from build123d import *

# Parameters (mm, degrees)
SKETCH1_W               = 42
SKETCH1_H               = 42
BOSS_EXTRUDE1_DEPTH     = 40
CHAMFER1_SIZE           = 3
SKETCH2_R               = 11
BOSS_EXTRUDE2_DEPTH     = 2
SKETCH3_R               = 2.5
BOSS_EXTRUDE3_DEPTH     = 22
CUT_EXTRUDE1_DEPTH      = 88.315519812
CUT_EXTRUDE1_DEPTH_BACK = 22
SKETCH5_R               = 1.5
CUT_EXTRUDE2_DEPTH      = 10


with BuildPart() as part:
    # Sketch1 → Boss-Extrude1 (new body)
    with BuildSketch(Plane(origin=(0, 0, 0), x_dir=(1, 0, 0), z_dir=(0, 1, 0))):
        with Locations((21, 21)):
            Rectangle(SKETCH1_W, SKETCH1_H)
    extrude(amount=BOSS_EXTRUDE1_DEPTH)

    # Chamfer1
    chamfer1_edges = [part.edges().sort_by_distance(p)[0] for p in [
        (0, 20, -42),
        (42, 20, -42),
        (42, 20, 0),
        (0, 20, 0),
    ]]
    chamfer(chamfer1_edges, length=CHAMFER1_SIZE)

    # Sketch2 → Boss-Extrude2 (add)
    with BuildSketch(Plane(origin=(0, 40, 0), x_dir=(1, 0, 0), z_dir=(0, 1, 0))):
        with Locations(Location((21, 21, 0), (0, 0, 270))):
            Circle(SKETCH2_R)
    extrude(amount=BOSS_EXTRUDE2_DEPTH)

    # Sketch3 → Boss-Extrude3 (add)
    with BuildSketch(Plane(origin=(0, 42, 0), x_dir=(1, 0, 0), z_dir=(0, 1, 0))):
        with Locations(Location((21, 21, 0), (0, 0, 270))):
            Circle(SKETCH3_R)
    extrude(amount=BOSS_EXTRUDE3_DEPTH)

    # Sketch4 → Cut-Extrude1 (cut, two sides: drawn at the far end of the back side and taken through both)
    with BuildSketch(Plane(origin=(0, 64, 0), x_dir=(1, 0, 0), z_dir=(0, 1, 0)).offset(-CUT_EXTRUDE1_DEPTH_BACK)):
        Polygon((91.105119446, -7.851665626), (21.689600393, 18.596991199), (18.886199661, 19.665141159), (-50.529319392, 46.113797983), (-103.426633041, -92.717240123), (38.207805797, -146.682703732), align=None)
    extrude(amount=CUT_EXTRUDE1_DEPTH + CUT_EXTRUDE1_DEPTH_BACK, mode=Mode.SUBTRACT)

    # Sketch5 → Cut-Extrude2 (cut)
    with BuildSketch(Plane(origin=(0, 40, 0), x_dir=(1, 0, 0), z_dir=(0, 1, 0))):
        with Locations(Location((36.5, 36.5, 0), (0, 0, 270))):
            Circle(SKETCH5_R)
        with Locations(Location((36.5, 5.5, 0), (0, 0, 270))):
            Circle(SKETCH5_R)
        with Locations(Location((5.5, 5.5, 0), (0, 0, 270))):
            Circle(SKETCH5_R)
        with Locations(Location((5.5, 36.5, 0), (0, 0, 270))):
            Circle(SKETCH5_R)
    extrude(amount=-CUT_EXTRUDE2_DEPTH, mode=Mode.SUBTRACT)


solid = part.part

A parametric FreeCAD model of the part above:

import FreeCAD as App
import Part
import Sketcher
Q = App.Units.Quantity


def edges_at(feature, points):
    """Names of the edges that pass closest to the given points."""
    edges = feature.Shape.Edges
    near = lambda p: min(range(len(edges)), key=lambda i: edges[i].distToShape(Part.Vertex(*p))[0])
    return sorted({f"Edge{near(p) + 1}" for p in points})

doc = App.newDocument("Part")
body = doc.addObject("PartDesign::Body", "Body")

# Sketch on XZ plane
sketch1 = body.newObject("Sketcher::SketchObject", "Sketch")
sketch1.AttachmentSupport = (doc.getObject("XZ_Plane"), [""])
sketch1.MapMode = "FlatFace"
sketch1.addGeometry([
    Part.LineSegment(App.Vector(0, -42, 0), App.Vector(0, 0, 0)),
    Part.LineSegment(App.Vector(0, 0, 0), App.Vector(42, 0, 0)),
    Part.LineSegment(App.Vector(42, 0, 0), App.Vector(42, -42, 0)),
    Part.LineSegment(App.Vector(42, -42, 0), App.Vector(0, -42, 0)),
], False)
sketch1.addConstraint([
    Sketcher.Constraint("Coincident", 0, 2, 1, 1),
    Sketcher.Constraint("Coincident", 1, 2, 2, 1),
    Sketcher.Constraint("Coincident", 2, 2, 3, 1),
    Sketcher.Constraint("Coincident", 3, 2, 0, 1),
    Sketcher.Constraint("Vertical", 0),
    Sketcher.Constraint("Horizontal", 1),
    Sketcher.Constraint("Vertical", 2),
    Sketcher.Constraint("Horizontal", 3),
    Sketcher.Constraint("Coincident", 0, 2, -1, 1),
    Sketcher.Constraint("Equal", 3, 0),
    Sketcher.Constraint("DistanceX", 1, 1, 1, 2, Q("42 mm")),
])
pad1 = body.newObject("PartDesign::Pad", "Pad")
pad1.Profile = sketch1
pad1.Length = 40
pad1.Reversed = True
doc.recompute()

chamfer = body.newObject("PartDesign::Chamfer", "Chamfer")
chamfer.Base = (pad1, edges_at(pad1, [
    (0, 20, -42),
    (42, 20, -42),
    (42, 20, 0),
    (0, 20, 0),
]))
chamfer.Size = 3

# Sketch on XZ plane
sketch2 = body.newObject("Sketcher::SketchObject", "Sketch001")
sketch2.AttachmentSupport = (doc.getObject("XZ_Plane"), [""])
sketch2.MapMode = "FlatFace"
sketch2.AttachmentOffset = App.Placement(App.Vector(0, 0, -40), App.Rotation())
sketch2.addGeometry(Part.Circle(App.Vector(21, -21, 0), App.Vector(0, 0, 1), 11), False)
sketch2.addConstraint([
    Sketcher.Constraint("Diameter", 0, Q("22 mm")),
    Sketcher.Constraint("DistanceX", -1, 1, 0, 3, Q("21 mm")),
    Sketcher.Constraint("DistanceY", 0, 3, -1, 1, Q("21 mm")),
])
pad2 = body.newObject("PartDesign::Pad", "Pad001")
pad2.Profile = sketch2
pad2.Length = 2
pad2.Reversed = True

# Sketch on XZ plane
sketch3 = body.newObject("Sketcher::SketchObject", "Sketch002")
sketch3.AttachmentSupport = (doc.getObject("XZ_Plane"), [""])
sketch3.MapMode = "FlatFace"
sketch3.AttachmentOffset = App.Placement(App.Vector(0, 0, -42), App.Rotation())
sketch3.addGeometry(Part.Circle(App.Vector(21, -21, 0), App.Vector(0, 0, 1), 2.5), False)
sketch3.addConstraint([
    Sketcher.Constraint("Diameter", 0, Q("5 mm")),
    Sketcher.Constraint("DistanceX", -1, 1, 0, 3, Q("21 mm")),
    Sketcher.Constraint("DistanceY", 0, 3, -1, 1, Q("21 mm")),
])
pad3 = body.newObject("PartDesign::Pad", "Pad002")
pad3.Profile = sketch3
pad3.Length = 22
pad3.Reversed = True

# Sketch on XZ plane
sketch4 = body.newObject("Sketcher::SketchObject", "Sketch003")
sketch4.AttachmentSupport = (doc.getObject("XZ_Plane"), [""])
sketch4.MapMode = "FlatFace"
sketch4.AttachmentOffset = App.Placement(App.Vector(0, 0, -64), App.Rotation())
sketch4.addGeometry([
    Part.LineSegment(App.Vector(91.105119, 7.851666, 0), App.Vector(21.6896, -18.596991, 0)),  # 0
    Part.LineSegment(App.Vector(21.6896, -18.596991, 0), App.Vector(18.8862, -19.665141, 0)),  # 1
    Part.LineSegment(App.Vector(18.8862, -19.665141, 0), App.Vector(-50.529319, -46.113798, 0)),  # 2
    Part.LineSegment(App.Vector(-50.529319, -46.113798, 0), App.Vector(-103.426633, 92.71724, 0)),  # 3
    Part.LineSegment(App.Vector(-103.426633, 92.71724, 0), App.Vector(38.207806, 146.682704, 0)),  # 4
    Part.LineSegment(App.Vector(38.207806, 146.682704, 0), App.Vector(91.105119, 7.851666, 0)),  # 5
], False)
sketch4.addConstraint([
    Sketcher.Constraint("Coincident", 0, 2, 1, 1),
    Sketcher.Constraint("Coincident", 1, 2, 2, 1),
    Sketcher.Constraint("Coincident", 2, 2, 3, 1),
    Sketcher.Constraint("Coincident", 3, 2, 4, 1),
    Sketcher.Constraint("Coincident", 4, 2, 5, 1),
    Sketcher.Constraint("Coincident", 5, 2, 0, 1),
    Sketcher.Constraint("Distance", 1, Q("3 mm")),
    Sketcher.Constraint("Distance", 3, Q("148.567099 mm")),
    Sketcher.Constraint("Distance", 4, Q("151.567099 mm")),
    Sketcher.Constraint("Distance", 5, Q("148.567099 mm")),
    Sketcher.Constraint("DistanceX", -1, 1, 0, 2, Q("21.6896 mm")),
    Sketcher.Constraint("DistanceX", -1, 1, 1, 2, Q("18.8862 mm")),
    Sketcher.Constraint("DistanceY", 2, 2, 4, 2, Q("192.796502 mm")),
    Sketcher.Constraint("Distance", 0, Q("74.28355 mm")),
    Sketcher.Constraint("Distance", 2, Q("74.28355 mm")),
    Sketcher.Constraint("DistanceY", 0, 2, -1, 1, Q("18.596991 mm")),
    Sketcher.Constraint("DistanceX", 2, 2, -1, 1, Q("50.529319 mm")),
    Sketcher.Constraint("DistanceY", -1, 1, 3, 2, Q("92.71724 mm")),
])
pocket1 = body.newObject("PartDesign::Pocket", "Pocket")
pocket1.Profile = sketch4
pocket1.Type = "TwoLengths"
pocket1.Length = 88.31552
pocket1.Length2 = 22

# Sketch on XZ plane
sketch5 = body.newObject("Sketcher::SketchObject", "Sketch004")
sketch5.AttachmentSupport = (doc.getObject("XZ_Plane"), [""])
sketch5.MapMode = "FlatFace"
sketch5.AttachmentOffset = App.Placement(App.Vector(0, 0, -40), App.Rotation())
sketch5.addGeometry([
    Part.Circle(App.Vector(36.5, -36.5, 0), App.Vector(0, 0, 1), 1.5),
    Part.Circle(App.Vector(36.5, -5.5, 0), App.Vector(0, 0, 1), 1.5),
    Part.Circle(App.Vector(5.5, -5.5, 0), App.Vector(0, 0, 1), 1.5),
    Part.Circle(App.Vector(5.5, -36.5, 0), App.Vector(0, 0, 1), 1.5),
], False)
sketch5.addConstraint([
    Sketcher.Constraint("Equal", 0, 1),
    Sketcher.Constraint("Equal", 1, 2),
    Sketcher.Constraint("Equal", 2, 3),
    Sketcher.Constraint("Horizontal", 1, 3, 2, 3),
    Sketcher.Constraint("Horizontal", 0, 3, 3, 3),
    Sketcher.Constraint("Vertical", 0, 3, 1, 3),
    Sketcher.Constraint("Vertical", 2, 3, 3, 3),
    Sketcher.Constraint("Diameter", 0, Q("3 mm")),
    Sketcher.Constraint("DistanceY", 0, 3, 1, 3, Q("31 mm")),
    Sketcher.Constraint("DistanceX", 2, 3, 1, 3, Q("31 mm")),
    Sketcher.Constraint("DistanceX", -1, 1, 0, 3, Q("36.5 mm")),
    Sketcher.Constraint("DistanceY", 0, 3, -1, 1, Q("36.5 mm")),
])
pocket2 = body.newObject("PartDesign::Pocket", "Pocket001")
pocket2.Profile = sketch5
pocket2.Length = 10
pocket2.Reversed = True

doc.recompute()
